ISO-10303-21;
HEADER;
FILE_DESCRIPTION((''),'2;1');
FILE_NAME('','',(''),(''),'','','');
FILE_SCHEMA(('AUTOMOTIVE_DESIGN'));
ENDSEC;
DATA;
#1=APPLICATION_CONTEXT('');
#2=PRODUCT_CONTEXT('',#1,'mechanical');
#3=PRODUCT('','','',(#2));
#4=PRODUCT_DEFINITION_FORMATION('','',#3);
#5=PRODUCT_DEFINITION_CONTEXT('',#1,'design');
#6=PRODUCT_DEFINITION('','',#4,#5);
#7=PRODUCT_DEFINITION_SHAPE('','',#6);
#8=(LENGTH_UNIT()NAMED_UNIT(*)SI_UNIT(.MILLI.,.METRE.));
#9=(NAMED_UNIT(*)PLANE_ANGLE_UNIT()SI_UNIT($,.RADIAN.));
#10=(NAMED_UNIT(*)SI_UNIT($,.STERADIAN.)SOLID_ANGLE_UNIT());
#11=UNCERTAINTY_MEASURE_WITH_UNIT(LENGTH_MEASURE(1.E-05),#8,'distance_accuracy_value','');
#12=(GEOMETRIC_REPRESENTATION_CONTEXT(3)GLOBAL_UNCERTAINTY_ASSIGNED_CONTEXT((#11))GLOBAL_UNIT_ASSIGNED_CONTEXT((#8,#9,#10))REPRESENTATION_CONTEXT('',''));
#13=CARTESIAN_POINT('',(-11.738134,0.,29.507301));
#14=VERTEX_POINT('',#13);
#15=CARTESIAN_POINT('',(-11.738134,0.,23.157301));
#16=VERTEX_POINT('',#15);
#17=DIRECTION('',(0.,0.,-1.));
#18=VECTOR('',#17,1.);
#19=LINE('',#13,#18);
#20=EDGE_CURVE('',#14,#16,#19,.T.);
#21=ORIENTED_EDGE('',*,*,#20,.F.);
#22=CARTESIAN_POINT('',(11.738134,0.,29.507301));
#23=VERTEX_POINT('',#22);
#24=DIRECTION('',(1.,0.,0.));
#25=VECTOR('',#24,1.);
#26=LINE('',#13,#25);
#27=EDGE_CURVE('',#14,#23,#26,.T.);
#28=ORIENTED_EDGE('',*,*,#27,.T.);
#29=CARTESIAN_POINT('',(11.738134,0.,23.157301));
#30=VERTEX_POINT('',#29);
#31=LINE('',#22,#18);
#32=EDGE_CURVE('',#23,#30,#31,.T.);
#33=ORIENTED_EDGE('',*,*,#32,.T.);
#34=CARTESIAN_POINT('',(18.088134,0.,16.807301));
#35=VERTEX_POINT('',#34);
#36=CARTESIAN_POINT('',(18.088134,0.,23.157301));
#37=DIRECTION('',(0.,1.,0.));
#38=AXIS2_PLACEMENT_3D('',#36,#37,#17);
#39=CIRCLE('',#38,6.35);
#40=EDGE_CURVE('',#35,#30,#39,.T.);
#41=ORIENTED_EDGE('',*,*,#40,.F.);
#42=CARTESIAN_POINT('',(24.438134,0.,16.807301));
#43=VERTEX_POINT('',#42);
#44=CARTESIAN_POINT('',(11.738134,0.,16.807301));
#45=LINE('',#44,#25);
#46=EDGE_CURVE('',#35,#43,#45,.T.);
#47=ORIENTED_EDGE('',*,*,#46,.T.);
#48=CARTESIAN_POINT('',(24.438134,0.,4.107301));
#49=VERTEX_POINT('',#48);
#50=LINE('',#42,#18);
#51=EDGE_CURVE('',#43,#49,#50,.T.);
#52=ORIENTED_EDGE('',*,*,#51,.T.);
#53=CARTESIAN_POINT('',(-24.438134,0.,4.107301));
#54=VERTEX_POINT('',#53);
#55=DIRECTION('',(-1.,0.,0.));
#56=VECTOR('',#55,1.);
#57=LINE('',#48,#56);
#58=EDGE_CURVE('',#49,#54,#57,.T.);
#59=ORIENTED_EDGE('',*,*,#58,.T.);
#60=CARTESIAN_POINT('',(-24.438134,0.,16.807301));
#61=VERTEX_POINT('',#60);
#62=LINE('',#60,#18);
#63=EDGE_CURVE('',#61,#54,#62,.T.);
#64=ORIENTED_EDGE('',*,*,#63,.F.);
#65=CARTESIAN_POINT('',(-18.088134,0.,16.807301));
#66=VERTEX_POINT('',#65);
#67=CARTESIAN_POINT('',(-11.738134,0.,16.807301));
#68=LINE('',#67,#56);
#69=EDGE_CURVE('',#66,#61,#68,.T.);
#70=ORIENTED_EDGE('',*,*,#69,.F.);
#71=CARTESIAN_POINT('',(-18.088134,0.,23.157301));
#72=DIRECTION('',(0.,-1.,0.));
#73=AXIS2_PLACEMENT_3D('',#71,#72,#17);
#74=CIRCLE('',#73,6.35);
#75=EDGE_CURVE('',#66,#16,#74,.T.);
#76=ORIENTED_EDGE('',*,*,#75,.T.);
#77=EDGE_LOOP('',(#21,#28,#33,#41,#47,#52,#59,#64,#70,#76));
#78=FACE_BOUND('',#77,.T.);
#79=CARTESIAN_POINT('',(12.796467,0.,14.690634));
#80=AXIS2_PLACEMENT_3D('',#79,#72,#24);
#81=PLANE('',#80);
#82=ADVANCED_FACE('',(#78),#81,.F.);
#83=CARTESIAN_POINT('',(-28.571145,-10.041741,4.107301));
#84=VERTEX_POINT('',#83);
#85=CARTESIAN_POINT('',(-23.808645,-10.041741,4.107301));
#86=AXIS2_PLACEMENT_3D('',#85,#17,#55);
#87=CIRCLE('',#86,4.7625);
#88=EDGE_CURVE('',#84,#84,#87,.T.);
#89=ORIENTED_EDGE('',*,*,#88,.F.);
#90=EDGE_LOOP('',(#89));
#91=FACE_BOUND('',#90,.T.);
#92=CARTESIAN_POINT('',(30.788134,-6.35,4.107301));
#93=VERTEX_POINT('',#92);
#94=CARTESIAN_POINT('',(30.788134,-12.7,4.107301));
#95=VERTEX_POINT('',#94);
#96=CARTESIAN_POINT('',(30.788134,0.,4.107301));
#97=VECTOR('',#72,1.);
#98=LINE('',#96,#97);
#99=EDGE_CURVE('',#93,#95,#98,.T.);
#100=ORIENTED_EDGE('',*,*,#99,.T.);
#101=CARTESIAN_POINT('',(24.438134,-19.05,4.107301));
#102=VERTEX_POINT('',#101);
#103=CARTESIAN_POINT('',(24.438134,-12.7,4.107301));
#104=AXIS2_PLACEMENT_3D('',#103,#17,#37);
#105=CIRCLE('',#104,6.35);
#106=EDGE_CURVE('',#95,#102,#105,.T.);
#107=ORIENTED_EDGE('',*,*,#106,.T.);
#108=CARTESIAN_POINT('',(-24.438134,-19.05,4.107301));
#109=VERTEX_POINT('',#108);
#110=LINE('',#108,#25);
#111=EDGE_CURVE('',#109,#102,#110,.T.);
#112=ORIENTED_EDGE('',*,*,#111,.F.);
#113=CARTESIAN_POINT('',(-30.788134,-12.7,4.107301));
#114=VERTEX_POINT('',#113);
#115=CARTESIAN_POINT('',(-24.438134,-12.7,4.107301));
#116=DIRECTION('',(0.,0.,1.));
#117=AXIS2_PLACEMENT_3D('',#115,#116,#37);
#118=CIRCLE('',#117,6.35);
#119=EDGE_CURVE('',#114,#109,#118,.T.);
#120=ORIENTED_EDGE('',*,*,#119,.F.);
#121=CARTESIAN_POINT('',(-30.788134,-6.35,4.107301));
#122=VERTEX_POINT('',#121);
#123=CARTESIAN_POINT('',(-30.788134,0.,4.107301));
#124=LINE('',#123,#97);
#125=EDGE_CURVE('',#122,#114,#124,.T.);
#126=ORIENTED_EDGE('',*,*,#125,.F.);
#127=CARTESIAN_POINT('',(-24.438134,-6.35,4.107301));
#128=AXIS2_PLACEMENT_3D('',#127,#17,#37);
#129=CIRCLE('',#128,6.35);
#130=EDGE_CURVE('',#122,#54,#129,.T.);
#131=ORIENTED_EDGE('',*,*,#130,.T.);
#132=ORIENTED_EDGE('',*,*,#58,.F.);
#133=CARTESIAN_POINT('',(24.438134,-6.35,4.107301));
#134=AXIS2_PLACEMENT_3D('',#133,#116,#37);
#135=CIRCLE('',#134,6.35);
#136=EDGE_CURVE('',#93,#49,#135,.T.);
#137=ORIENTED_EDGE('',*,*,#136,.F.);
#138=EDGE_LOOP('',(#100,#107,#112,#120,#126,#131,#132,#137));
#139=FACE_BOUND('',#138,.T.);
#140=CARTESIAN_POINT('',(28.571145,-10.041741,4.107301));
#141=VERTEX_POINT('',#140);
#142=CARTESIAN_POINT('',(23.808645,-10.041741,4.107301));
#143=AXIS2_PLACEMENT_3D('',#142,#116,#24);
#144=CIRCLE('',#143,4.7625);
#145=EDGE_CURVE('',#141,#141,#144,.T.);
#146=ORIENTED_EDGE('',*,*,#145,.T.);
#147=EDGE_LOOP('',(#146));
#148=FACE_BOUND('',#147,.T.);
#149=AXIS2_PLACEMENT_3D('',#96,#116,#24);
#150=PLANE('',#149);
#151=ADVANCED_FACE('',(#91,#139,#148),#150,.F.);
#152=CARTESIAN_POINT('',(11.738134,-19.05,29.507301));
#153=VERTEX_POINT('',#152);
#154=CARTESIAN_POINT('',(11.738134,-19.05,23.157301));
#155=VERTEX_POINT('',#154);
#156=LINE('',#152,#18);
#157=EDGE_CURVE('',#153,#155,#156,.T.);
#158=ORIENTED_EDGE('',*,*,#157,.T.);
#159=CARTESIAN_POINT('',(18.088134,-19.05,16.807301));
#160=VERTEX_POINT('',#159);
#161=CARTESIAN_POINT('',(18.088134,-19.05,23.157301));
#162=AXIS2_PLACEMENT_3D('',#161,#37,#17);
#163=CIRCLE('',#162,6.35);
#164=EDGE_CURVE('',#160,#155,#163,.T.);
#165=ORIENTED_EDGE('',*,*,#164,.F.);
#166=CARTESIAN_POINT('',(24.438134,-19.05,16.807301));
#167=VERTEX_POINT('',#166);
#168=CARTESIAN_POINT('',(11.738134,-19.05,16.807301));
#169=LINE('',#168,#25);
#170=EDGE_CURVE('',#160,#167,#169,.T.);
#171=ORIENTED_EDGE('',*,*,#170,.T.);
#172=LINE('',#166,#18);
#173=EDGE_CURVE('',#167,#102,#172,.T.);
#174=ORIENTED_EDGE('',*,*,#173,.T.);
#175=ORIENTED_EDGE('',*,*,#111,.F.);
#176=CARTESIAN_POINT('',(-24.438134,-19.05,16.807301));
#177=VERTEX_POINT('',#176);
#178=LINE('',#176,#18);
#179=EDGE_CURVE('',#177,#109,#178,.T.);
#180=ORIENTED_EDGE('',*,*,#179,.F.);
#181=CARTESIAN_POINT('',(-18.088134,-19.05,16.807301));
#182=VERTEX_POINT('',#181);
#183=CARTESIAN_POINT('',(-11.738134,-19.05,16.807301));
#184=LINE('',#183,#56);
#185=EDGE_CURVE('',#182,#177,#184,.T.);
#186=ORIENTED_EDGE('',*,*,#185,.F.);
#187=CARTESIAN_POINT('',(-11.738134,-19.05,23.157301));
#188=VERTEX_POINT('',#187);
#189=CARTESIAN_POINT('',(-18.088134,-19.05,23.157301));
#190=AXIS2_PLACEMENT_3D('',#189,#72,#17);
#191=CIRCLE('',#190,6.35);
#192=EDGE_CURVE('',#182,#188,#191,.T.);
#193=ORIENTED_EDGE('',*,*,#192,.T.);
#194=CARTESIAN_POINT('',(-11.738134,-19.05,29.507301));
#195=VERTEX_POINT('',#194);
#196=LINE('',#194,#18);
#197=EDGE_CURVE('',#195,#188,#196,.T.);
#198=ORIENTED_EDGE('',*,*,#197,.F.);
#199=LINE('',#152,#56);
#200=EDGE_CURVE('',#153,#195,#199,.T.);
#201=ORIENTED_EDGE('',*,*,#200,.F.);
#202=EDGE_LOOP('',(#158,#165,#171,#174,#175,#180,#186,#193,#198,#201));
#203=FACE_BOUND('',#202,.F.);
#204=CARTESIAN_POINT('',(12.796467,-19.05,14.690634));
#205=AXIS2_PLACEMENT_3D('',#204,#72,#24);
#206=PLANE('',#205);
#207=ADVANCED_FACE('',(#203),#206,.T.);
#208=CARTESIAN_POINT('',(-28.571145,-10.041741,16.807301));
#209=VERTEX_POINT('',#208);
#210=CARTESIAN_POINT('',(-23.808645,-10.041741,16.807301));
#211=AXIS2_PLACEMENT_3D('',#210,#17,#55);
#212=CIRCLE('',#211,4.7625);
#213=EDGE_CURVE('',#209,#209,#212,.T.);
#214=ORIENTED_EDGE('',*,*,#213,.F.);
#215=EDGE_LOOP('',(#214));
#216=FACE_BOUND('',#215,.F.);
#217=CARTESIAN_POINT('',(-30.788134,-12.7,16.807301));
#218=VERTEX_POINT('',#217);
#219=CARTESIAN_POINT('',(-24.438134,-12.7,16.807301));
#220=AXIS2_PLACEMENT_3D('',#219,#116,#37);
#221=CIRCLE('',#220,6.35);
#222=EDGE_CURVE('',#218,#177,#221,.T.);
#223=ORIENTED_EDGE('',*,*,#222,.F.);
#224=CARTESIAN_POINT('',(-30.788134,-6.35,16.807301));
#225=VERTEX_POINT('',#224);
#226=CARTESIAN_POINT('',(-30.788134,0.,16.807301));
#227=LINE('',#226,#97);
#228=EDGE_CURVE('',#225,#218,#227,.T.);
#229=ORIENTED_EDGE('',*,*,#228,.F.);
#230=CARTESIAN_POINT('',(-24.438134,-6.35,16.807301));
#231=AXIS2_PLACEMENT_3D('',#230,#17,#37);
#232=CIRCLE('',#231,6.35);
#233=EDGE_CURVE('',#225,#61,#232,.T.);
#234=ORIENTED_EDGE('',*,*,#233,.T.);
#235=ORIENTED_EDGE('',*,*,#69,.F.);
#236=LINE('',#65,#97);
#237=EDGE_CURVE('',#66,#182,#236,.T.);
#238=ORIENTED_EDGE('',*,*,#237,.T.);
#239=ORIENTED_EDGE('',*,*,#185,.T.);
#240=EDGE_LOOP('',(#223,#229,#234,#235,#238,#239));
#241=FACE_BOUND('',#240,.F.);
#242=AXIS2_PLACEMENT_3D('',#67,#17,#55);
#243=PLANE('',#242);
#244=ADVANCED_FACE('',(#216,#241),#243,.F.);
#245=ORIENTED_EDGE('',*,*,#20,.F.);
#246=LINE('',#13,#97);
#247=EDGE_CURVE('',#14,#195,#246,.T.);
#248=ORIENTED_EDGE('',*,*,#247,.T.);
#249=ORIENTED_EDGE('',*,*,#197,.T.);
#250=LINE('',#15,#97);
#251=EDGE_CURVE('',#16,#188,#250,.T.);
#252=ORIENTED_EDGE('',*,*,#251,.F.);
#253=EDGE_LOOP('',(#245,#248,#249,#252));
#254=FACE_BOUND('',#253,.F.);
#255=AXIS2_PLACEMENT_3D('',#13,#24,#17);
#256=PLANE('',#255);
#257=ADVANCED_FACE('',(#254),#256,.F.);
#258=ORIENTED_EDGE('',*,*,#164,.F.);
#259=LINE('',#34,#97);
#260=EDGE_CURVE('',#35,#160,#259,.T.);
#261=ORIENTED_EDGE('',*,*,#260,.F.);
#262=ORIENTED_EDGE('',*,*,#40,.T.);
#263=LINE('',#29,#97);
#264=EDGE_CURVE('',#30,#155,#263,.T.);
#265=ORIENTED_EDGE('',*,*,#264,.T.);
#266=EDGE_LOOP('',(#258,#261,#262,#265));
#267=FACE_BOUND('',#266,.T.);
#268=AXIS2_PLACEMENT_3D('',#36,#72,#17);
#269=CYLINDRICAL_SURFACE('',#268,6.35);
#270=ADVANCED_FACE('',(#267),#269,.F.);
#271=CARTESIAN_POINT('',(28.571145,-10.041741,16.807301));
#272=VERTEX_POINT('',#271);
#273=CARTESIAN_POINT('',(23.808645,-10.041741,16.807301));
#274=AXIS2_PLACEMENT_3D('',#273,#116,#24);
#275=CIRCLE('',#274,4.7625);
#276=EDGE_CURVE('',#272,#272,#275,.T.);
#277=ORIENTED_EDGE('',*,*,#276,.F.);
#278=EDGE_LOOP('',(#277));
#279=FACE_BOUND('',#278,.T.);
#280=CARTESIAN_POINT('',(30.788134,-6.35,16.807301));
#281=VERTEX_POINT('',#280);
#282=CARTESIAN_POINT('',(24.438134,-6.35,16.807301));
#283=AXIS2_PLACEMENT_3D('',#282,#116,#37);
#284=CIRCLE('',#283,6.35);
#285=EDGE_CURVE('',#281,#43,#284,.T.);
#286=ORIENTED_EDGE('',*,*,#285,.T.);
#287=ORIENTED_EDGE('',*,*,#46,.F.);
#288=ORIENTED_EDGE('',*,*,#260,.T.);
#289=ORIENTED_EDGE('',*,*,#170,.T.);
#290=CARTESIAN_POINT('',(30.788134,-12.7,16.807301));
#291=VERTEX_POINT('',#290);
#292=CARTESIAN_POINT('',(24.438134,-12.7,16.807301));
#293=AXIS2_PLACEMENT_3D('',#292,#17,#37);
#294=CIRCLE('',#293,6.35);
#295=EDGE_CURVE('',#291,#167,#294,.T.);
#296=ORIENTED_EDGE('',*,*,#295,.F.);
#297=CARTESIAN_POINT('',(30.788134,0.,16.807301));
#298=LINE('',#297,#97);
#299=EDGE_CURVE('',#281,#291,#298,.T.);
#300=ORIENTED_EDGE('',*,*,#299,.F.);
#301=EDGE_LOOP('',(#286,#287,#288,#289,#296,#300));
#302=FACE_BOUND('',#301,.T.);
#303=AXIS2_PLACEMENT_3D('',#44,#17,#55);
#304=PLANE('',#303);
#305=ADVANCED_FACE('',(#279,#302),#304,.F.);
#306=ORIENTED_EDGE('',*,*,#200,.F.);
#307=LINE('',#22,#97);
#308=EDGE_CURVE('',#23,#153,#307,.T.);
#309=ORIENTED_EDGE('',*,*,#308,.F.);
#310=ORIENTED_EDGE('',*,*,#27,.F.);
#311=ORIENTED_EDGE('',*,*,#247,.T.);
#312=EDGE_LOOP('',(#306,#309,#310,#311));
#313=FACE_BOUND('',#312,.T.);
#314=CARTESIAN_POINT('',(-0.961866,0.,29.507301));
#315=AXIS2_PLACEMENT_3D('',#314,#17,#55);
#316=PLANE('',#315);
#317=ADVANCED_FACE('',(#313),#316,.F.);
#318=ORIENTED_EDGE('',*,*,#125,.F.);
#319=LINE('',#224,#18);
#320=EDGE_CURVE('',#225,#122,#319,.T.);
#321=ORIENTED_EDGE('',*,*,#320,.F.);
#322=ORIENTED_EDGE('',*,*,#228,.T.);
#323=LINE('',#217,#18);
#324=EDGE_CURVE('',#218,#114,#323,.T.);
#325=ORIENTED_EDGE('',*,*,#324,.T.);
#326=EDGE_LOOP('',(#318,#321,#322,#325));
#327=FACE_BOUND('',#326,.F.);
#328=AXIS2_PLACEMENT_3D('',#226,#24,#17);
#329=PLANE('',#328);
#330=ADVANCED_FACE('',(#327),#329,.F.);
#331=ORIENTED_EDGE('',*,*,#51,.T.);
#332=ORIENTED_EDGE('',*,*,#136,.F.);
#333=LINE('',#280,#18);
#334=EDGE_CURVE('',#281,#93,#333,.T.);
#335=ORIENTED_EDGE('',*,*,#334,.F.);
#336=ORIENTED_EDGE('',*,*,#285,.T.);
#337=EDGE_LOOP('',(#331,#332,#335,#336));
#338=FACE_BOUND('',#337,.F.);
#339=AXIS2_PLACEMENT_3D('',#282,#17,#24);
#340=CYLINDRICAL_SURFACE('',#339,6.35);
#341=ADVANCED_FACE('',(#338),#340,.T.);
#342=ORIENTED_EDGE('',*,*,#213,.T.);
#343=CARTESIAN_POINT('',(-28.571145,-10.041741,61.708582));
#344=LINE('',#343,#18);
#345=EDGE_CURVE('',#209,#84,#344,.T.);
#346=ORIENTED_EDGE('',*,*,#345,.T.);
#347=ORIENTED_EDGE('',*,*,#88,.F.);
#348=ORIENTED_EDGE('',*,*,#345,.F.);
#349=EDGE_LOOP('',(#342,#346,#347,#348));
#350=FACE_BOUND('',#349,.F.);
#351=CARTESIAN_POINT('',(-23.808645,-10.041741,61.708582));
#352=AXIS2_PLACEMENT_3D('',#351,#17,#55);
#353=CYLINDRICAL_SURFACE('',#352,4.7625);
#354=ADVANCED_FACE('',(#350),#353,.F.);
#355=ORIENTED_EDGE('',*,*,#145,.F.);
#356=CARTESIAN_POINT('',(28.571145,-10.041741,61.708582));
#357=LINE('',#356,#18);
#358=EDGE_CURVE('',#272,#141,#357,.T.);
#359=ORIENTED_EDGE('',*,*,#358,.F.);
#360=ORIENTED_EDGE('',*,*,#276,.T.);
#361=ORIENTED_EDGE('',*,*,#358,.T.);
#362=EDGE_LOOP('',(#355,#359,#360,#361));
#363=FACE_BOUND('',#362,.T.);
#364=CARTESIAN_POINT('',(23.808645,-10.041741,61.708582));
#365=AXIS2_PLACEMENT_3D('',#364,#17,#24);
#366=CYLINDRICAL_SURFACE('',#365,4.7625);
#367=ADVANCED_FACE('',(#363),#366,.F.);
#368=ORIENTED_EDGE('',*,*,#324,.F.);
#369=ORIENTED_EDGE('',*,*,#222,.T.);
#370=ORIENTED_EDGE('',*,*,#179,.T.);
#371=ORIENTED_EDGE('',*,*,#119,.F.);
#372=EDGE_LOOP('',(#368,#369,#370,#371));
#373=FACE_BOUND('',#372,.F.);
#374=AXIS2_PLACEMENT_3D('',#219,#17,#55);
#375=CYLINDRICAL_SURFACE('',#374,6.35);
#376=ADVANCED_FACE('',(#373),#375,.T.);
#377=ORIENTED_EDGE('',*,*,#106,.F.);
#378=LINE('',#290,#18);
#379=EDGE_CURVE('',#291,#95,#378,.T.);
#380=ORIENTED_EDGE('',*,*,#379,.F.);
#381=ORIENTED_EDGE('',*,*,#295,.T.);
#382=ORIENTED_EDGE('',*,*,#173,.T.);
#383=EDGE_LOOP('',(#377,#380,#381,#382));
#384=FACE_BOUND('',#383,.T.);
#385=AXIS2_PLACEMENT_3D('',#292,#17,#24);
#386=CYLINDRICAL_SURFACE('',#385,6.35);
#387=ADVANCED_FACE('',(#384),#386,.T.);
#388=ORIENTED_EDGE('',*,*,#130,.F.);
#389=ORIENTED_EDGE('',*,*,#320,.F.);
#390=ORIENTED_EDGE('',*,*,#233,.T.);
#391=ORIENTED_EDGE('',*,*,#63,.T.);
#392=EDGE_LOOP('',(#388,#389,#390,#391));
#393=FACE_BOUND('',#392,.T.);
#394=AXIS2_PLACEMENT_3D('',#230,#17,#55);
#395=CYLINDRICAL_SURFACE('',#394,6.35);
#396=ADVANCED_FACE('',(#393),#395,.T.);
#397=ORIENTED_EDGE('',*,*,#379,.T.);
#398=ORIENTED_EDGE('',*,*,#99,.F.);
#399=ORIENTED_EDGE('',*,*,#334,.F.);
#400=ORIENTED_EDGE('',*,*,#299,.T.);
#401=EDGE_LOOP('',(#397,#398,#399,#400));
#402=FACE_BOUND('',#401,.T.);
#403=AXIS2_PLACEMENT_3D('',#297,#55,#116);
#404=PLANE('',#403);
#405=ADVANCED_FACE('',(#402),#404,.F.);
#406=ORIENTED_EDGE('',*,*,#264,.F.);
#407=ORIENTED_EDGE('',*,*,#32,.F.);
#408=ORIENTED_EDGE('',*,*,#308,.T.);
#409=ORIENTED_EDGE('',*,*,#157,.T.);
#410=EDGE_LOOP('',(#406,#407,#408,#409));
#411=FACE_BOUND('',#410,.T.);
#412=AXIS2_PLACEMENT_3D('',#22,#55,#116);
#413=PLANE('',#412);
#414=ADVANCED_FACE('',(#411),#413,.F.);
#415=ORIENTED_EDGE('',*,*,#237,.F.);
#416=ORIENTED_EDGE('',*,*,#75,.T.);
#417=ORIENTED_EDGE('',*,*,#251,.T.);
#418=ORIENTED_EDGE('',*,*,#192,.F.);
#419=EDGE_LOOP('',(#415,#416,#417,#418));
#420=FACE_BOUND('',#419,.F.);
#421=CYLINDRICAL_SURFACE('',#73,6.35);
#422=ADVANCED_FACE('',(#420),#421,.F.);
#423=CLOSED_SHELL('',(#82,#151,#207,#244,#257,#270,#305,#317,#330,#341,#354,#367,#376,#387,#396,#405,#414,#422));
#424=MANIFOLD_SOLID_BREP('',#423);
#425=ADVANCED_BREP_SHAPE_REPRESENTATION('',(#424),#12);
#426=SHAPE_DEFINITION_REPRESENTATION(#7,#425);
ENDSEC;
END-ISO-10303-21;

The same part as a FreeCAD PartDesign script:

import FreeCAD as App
import Part
import Sketcher

V = App.Vector
Q = App.Units.Quantity


def edges_at(feature, points):
    """Names of the edges that pass closest to the given points."""
    edges = feature.Shape.Edges
    near = lambda p: min(range(len(edges)), key=lambda i: edges[i].distToShape(Part.Vertex(*p))[0])
    return sorted({f"Edge{near(p) + 1}" for p in points})


def add_polygon(sketch, points):
    """Adds a closed chain of lines whose ends are joined by coincident constraints."""
    first, n = sketch.GeometryCount, len(points)
    for a, b in zip(points, points[1:] + points[:1]):
        sketch.addGeometry(Part.LineSegment(App.Vector(*a, 0), App.Vector(*b, 0)), False)
    for i in range(n):
        sketch.addConstraint(Sketcher.Constraint("Coincident", first + i, 2, first + (i + 1) % n, 1))

doc = App.newDocument("Part")
body = doc.addObject("PartDesign::Body", "Body")

sketch1 = body.newObject("Sketcher::SketchObject", "Sketch")
sketch1.AttachmentSupport = (doc.getObject("XZ_Plane"), [""])
sketch1.MapMode = "FlatFace"
add_polygon(sketch1, [(-12, 17), (-31, 17), (-31, 4), (1, 4), (1, 30), (-12, 30)])
sketch1.addConstraint([
    Sketcher.Constraint("Horizontal", 0),
    Sketcher.Constraint("Vertical", 1),
    Sketcher.Constraint("Horizontal", 2),
    Sketcher.Constraint("Vertical", 3),
    Sketcher.Constraint("Horizontal", 4),
    Sketcher.Constraint("Vertical", 5),
    Sketcher.Constraint("Equal", 4, 1),
    Sketcher.Constraint("Equal", 1, 5),
    Sketcher.Constraint("DistanceY", 3, 1, 3, 2, Q("1 in")),
    Sketcher.Constraint("DistanceX", 0, 2, 0, 1, Q("0.75 in")),
    Sketcher.Constraint("DistanceY", -1, 1, 0, 2, Q("16.807301 mm")),
    Sketcher.Constraint("DistanceX", 0, 2, -1, 1, Q("30.788134 mm")),
])
pad1 = body.newObject("PartDesign::Pad", "Pad")
pad1.Profile = sketch1
pad1.Length = Q("0.75 in")
doc.recompute()

fillet = body.newObject("PartDesign::Fillet", "Fillet")
fillet.Base = (pad1, edges_at(pad1, [(-30.788, 0, 10.457), (-30.788, -19.05, 10.457), (-11.738, -9.525, 16.807)]))
fillet.Radius = Q("0.25 in")

sketch2 = body.newObject("Sketcher::SketchObject", "Sketch001")
sketch2.AttachmentSupport = (doc.getObject("XY_Plane"), [""])
sketch2.MapMode = "FlatFace"
sketch2.AttachmentOffset = App.Placement(V(0, 0, 16.807301), App.Rotation())
sketch2.addGeometry(Part.Circle(V(-23.8, -10, 0), V(0, 0, 1), 4.8), False)
sketch2.addConstraint([
    Sketcher.Constraint("Diameter", 0, Q("0.375 in")),
    Sketcher.Constraint("DistanceY", 0, 3, -1, 1, Q("10.041741 mm")),
    Sketcher.Constraint("DistanceX", 0, 3, -1, 1, Q("23.808645 mm")),
])
doc.recompute()
hole = body.newObject("PartDesign::Hole", "Hole")
hole.Profile = sketch2
hole.ThreadType = "None"
hole.Diameter = Q("0.375 in")
hole.DepthType = "ThroughAll"
body2 = doc.addObject("PartDesign::Body", "Body001")
doc.recompute()

body2.BaseFeature = body
doc.recompute()

mirroring = doc.addObject("Part::Mirroring", "Mirroring")
mirroring.Source = body
mirroring.Base = V(0, 0, 0)
mirroring.Normal = V(1, 0, 0)
body3 = doc.addObject("PartDesign::Body", "Body002")
body3.BaseFeature = mirroring
boolean = body2.newObject("PartDesign::Boolean", "Boolean")
boolean.Type = "Fuse"
boolean.addObjects([body3])
doc.recompute()
mirroring.Visibility = False

doc.recompute()
